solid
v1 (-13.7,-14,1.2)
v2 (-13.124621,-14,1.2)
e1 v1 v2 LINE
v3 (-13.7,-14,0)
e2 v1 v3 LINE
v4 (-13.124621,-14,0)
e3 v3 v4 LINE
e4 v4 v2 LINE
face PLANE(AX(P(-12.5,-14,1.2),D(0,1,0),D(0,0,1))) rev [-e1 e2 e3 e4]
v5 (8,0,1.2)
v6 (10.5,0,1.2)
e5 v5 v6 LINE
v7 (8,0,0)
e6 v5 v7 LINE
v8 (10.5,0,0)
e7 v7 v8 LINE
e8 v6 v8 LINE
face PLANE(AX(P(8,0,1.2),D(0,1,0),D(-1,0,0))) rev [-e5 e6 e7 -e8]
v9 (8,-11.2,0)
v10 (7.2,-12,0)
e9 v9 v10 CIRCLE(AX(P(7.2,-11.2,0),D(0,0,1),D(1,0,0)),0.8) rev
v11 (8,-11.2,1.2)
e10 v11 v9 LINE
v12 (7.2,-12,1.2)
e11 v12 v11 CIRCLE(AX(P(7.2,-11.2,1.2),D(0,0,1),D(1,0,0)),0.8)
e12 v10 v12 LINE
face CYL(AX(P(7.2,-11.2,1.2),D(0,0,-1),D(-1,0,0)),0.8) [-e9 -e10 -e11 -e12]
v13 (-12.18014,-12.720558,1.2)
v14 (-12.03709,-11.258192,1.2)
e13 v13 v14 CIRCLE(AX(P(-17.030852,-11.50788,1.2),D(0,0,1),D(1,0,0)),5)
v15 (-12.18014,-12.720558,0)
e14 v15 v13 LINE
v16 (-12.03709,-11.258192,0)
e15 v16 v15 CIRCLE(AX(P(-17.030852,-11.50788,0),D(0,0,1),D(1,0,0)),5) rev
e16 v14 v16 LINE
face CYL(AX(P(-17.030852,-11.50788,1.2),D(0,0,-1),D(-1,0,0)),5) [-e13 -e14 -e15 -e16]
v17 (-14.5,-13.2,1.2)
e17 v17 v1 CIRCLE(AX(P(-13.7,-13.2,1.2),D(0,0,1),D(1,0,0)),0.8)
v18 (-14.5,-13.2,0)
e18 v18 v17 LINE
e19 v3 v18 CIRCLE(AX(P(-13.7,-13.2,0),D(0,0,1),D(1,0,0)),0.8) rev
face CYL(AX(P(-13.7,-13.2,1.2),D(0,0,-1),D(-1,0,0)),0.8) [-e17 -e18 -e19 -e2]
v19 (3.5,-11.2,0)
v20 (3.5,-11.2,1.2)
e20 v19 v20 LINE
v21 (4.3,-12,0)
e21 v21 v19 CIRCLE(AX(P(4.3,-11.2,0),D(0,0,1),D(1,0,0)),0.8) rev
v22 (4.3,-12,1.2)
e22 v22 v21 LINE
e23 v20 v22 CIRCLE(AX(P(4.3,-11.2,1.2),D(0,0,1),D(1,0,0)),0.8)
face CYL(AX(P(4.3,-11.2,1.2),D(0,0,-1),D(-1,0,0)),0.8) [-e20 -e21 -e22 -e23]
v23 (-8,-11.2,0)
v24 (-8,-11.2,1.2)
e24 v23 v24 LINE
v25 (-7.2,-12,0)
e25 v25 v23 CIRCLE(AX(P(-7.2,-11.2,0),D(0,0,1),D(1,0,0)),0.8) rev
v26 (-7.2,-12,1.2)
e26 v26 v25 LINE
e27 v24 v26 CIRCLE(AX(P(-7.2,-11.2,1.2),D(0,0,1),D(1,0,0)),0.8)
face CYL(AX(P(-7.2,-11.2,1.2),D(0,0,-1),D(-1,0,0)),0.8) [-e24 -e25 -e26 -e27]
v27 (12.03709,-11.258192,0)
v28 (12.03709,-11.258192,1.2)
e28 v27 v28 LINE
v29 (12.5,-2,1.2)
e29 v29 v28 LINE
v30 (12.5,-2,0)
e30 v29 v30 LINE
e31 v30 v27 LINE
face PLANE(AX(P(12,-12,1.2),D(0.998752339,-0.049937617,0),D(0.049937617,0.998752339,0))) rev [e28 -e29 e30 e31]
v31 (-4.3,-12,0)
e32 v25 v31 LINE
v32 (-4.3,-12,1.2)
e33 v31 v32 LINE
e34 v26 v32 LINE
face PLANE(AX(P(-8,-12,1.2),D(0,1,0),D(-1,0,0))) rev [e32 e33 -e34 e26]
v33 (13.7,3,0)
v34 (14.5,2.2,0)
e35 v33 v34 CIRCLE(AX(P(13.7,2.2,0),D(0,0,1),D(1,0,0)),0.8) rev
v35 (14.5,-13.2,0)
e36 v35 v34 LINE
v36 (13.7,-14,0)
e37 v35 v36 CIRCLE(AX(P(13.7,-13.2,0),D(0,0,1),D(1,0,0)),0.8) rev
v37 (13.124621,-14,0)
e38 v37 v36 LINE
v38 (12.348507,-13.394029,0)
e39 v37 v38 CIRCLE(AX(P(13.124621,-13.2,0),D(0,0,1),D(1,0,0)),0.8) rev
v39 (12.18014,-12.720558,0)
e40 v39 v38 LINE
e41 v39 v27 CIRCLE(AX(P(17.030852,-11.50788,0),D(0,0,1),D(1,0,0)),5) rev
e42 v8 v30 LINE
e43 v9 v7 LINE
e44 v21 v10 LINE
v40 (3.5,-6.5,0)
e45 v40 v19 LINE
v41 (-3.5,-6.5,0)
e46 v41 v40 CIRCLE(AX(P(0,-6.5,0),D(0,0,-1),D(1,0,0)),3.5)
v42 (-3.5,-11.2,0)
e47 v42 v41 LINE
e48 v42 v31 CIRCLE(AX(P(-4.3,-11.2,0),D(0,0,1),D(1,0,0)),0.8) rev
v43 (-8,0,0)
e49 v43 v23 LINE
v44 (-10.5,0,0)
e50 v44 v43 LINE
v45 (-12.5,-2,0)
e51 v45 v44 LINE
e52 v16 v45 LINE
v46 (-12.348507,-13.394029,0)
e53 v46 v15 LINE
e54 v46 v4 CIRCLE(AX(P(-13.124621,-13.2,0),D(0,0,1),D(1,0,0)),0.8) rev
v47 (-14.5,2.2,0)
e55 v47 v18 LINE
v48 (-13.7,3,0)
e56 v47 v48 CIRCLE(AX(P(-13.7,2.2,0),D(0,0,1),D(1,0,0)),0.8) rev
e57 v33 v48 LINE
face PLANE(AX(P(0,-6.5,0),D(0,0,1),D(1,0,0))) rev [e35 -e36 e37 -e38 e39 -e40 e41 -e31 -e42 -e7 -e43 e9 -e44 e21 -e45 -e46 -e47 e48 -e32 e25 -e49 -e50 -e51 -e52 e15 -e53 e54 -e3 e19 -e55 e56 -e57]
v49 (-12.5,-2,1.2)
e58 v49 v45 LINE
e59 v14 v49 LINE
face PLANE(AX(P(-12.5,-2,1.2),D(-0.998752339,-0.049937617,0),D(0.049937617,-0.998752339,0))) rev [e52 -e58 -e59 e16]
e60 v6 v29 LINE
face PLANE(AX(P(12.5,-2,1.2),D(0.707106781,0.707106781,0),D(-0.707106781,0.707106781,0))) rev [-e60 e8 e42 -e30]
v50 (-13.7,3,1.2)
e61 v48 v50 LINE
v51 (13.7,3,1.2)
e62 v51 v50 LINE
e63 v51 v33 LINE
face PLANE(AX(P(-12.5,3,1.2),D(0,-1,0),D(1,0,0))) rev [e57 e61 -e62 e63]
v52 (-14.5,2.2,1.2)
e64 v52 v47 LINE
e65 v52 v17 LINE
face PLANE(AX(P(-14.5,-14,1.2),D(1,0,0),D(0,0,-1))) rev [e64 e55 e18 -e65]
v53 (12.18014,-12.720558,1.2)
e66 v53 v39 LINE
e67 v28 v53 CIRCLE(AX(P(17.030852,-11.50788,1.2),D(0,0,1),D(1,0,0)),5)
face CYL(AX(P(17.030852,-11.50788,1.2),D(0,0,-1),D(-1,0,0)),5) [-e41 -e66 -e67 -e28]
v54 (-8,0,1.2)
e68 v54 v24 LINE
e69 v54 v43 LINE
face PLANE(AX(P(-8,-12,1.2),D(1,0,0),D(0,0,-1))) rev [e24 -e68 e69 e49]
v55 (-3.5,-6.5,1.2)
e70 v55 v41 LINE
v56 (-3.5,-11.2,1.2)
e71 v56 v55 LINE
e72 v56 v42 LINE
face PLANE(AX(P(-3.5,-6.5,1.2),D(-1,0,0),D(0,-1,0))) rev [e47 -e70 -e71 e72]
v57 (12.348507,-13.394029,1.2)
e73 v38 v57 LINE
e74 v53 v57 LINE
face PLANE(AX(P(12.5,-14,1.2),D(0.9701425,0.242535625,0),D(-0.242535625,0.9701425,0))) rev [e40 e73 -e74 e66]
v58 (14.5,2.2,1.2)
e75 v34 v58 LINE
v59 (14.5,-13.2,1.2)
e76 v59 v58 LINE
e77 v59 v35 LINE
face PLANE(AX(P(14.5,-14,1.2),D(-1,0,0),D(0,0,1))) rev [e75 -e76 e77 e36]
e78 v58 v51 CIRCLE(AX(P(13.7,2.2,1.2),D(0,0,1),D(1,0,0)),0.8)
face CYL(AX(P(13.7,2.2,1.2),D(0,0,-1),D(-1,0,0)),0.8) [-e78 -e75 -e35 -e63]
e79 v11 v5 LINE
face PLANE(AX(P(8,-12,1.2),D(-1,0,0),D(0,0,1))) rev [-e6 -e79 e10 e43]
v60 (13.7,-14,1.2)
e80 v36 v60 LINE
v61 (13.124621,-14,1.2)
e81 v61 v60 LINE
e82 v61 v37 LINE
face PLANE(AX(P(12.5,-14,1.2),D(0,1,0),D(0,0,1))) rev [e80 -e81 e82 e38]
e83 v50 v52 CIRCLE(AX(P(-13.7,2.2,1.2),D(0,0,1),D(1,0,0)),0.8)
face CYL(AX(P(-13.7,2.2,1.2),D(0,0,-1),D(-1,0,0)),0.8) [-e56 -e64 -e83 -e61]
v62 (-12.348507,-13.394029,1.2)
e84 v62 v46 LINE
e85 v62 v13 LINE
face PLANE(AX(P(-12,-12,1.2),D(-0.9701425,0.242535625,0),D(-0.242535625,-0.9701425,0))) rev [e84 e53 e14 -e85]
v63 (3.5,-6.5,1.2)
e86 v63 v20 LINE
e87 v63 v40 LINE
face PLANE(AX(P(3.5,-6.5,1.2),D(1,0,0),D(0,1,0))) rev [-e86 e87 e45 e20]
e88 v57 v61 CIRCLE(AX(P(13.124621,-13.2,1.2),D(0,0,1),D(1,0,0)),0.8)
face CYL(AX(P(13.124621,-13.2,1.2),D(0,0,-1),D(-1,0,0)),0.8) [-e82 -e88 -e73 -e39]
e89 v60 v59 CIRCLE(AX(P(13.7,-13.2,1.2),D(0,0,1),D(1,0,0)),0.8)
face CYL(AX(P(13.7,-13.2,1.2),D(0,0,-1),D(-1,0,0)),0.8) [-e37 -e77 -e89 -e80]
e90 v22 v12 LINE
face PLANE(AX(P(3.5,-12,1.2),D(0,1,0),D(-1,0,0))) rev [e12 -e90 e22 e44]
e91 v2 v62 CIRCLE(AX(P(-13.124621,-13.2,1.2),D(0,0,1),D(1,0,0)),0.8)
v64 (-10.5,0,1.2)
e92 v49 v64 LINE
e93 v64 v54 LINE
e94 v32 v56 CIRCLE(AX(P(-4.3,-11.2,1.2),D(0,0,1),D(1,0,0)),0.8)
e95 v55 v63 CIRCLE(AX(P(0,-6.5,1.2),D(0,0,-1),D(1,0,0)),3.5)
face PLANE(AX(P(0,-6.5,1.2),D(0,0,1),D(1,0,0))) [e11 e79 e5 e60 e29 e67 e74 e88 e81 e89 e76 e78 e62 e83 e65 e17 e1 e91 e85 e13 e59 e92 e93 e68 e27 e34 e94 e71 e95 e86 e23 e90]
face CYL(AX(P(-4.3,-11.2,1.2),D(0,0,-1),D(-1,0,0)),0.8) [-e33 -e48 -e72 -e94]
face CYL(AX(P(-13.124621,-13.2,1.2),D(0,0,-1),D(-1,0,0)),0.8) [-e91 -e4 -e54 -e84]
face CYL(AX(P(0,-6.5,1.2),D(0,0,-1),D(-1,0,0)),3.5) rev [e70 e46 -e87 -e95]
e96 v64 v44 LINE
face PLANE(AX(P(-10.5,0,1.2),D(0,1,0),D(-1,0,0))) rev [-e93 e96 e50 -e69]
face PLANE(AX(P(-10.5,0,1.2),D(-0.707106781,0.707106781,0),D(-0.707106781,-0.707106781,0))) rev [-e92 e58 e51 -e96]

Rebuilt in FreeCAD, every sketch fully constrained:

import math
import FreeCAD as App
import Part
import Sketcher


def edges_at(feature, points):
    """Names of the edges that pass closest to the given points."""
    edges = feature.Shape.Edges
    near = lambda p: min(range(len(edges)), key=lambda i: edges[i].distToShape(Part.Vertex(*p))[0])
    return sorted({f"Edge{near(p) + 1}" for p in points})

doc = App.newDocument("Part")
body = doc.addObject("PartDesign::Body", "Body")

# Sketch on XY plane
sketch1 = body.newObject("Sketcher::SketchObject", "Sketch")
sketch1.AttachmentSupport = (doc.getObject("XY_Plane"), [""])
sketch1.MapMode = "FlatFace"
sketch1.addGeometry([
    Part.LineSegment(App.Vector(-12.5, -2, 0), App.Vector(-10.5, 0, 0)),  # 0
    Part.LineSegment(App.Vector(-10.5, 0, 0), App.Vector(-8, 0, 0)),  # 1
    Part.LineSegment(App.Vector(-8, 0, 0), App.Vector(-8, -12, 0)),  # 2
    Part.LineSegment(App.Vector(-8, -12, 0), App.Vector(-3.5, -12, 0)),  # 3
    Part.LineSegment(App.Vector(-3.5, -12, 0), App.Vector(-3.5, -6.5, 0)),  # 4
    Part.ArcOfCircle(Part.Circle(App.Vector(0, -6.5, 0), App.Vector(0, 0, 1), 3.5), math.radians(0), math.radians(180)),  # 5
    Part.LineSegment(App.Vector(3.5, -6.5, 0), App.Vector(3.5, -12, 0)),  # 6
    Part.LineSegment(App.Vector(3.5, -12, 0), App.Vector(8, -12, 0)),  # 7
    Part.LineSegment(App.Vector(8, -12, 0), App.Vector(8, 0, 0)),  # 8
    Part.LineSegment(App.Vector(8, 0, 0), App.Vector(10.5, 0, 0)),  # 9
    Part.LineSegment(App.Vector(10.5, 0, 0), App.Vector(12.5, -2, 0)),  # 10
    Part.LineSegment(App.Vector(12.5, -2, 0), App.Vector(12, -12, 0)),  # 11
    Part.LineSegment(App.Vector(12, -12, 0), App.Vector(12.5, -14, 0)),  # 12
    Part.LineSegment(App.Vector(12.5, -14, 0), App.Vector(14.5, -14, 0)),  # 13
    Part.LineSegment(App.Vector(14.5, -14, 0), App.Vector(14.5, 3, 0)),  # 14
    Part.LineSegment(App.Vector(14.5, 3, 0), App.Vector(-14.5, 3, 0)),  # 15
    Part.LineSegment(App.Vector(-14.5, 3, 0), App.Vector(-14.5, -14, 0)),  # 16
    Part.LineSegment(App.Vector(-14.5, -14, 0), App.Vector(-12.5, -14, 0)),  # 17
    Part.LineSegment(App.Vector(-12.5, -14, 0), App.Vector(-12, -12, 0)),  # 18
    Part.LineSegment(App.Vector(-12, -12, 0), App.Vector(-12.5, -2, 0)),  # 19
], False)
sketch1.addConstraint([
    Sketcher.Constraint("Coincident", 0, 2, 1, 1),
    Sketcher.Constraint("Coincident", 1, 2, 2, 1),
    Sketcher.Constraint("Coincident", 2, 2, 3, 1),
    Sketcher.Constraint("Coincident", 3, 2, 4, 1),
    Sketcher.Constraint("Tangent", 4, 2, 5, 2),
    Sketcher.Constraint("Tangent", 5, 1, 6, 1),
    Sketcher.Constraint("Coincident", 6, 2, 7, 1),
    Sketcher.Constraint("Coincident", 7, 2, 8, 1),
    Sketcher.Constraint("Coincident", 8, 2, 9, 1),
    Sketcher.Constraint("Coincident", 9, 2, 10, 1),
    Sketcher.Constraint("Coincident", 10, 2, 11, 1),
    Sketcher.Constraint("Coincident", 11, 2, 12, 1),
    Sketcher.Constraint("Coincident", 12, 2, 13, 1),
    Sketcher.Constraint("Coincident", 13, 2, 14, 1),
    Sketcher.Constraint("Coincident", 14, 2, 15, 1),
    Sketcher.Constraint("Coincident", 15, 2, 16, 1),
    Sketcher.Constraint("Coincident", 16, 2, 17, 1),
    Sketcher.Constraint("Coincident", 17, 2, 18, 1),
    Sketcher.Constraint("Coincident", 18, 2, 19, 1),
    Sketcher.Constraint("Coincident", 19, 2, 0, 1),
    Sketcher.Constraint("Horizontal", 1),
    Sketcher.Constraint("Vertical", 2),
    Sketcher.Constraint("Horizontal", 3),
    Sketcher.Constraint("Vertical", 4),
    Sketcher.Constraint("Vertical", 6),
    Sketcher.Constraint("Horizontal", 7),
    Sketcher.Constraint("Vertical", 8),
    Sketcher.Constraint("Horizontal", 9),
    Sketcher.Constraint("Horizontal", 13),
    Sketcher.Constraint("Vertical", 14),
    Sketcher.Constraint("Horizontal", 15),
    Sketcher.Constraint("Vertical", 16),
    Sketcher.Constraint("Horizontal", 17),
    Sketcher.Constraint("Symmetric", 1, 2, 8, 2, -1, 1),
    Sketcher.Constraint("Symmetric", 3, 2, 6, 2, -2),
    Sketcher.Constraint("Symmetric", 0, 2, 9, 2, -2),
    Sketcher.Constraint("Symmetric", 13, 2, 16, 2, -2),
    Sketcher.Constraint("Symmetric", 11, 2, 18, 2, -2),
    Sketcher.Constraint("Symmetric", 10, 2, 19, 2, -2),
    Sketcher.Constraint("Perpendicular", 0, 10),
    Sketcher.Constraint("Horizontal", 7, 2, 11, 2),
    Sketcher.Constraint("Vertical", 10, 2, 12, 2),
    Sketcher.Constraint("Vertical", 17, 2, 19, 2),
    Sketcher.Constraint("Radius", 5, 3.5),
    Sketcher.Constraint("DistanceX", 13, 1, 13, 2, 2.0),
    Sketcher.Constraint("DistanceX", 15, 2, 15, 1, 29.0),
    Sketcher.Constraint("DistanceY", 2, 2, 2, 1, 12.0),
    Sketcher.Constraint("DistanceY", 14, 1, 14, 2, 17.0),
    Sketcher.Constraint("DistanceX", 1, 1, 1, 2, 2.5),
    Sketcher.Constraint("DistanceX", 3, 1, 3, 2, 4.5),
    Sketcher.Constraint("DistanceY", 4, 1, 4, 2, 5.5),
    Sketcher.Constraint("DistanceX", -1, 1, 11, 2, 12.0),
    Sketcher.Constraint("DistanceY", 12, 2, -1, 1, 14.0),
])
pad1 = body.newObject("PartDesign::Pad", "Pad")
pad1.Profile = sketch1
pad1.Length = 1.2
doc.recompute()

fillet = body.newObject("PartDesign::Fillet", "Fillet")
fillet.Base = (pad1, edges_at(pad1, [(-12, -12, 0.6), (12, -12, 0.6)]))
fillet.Radius = 5
doc.recompute()

fillet2 = body.newObject("PartDesign::Fillet", "Fillet001")
fillet2.Base = (fillet, edges_at(fillet, [
    (-12.5, -14, 0.6),
    (-14.5, -14, 0.6),
    (-14.5, 3, 0.6),
    (14.5, 3, 0.6),
    (14.5, -14, 0.6),
    (12.5, -14, 0.6),
    (8, -12, 0.6),
    (3.5, -12, 0.6),
    (-3.5, -12, 0.6),
    (-8, -12, 0.6),
]))
fillet2.Radius = 0.8

doc.recompute()
